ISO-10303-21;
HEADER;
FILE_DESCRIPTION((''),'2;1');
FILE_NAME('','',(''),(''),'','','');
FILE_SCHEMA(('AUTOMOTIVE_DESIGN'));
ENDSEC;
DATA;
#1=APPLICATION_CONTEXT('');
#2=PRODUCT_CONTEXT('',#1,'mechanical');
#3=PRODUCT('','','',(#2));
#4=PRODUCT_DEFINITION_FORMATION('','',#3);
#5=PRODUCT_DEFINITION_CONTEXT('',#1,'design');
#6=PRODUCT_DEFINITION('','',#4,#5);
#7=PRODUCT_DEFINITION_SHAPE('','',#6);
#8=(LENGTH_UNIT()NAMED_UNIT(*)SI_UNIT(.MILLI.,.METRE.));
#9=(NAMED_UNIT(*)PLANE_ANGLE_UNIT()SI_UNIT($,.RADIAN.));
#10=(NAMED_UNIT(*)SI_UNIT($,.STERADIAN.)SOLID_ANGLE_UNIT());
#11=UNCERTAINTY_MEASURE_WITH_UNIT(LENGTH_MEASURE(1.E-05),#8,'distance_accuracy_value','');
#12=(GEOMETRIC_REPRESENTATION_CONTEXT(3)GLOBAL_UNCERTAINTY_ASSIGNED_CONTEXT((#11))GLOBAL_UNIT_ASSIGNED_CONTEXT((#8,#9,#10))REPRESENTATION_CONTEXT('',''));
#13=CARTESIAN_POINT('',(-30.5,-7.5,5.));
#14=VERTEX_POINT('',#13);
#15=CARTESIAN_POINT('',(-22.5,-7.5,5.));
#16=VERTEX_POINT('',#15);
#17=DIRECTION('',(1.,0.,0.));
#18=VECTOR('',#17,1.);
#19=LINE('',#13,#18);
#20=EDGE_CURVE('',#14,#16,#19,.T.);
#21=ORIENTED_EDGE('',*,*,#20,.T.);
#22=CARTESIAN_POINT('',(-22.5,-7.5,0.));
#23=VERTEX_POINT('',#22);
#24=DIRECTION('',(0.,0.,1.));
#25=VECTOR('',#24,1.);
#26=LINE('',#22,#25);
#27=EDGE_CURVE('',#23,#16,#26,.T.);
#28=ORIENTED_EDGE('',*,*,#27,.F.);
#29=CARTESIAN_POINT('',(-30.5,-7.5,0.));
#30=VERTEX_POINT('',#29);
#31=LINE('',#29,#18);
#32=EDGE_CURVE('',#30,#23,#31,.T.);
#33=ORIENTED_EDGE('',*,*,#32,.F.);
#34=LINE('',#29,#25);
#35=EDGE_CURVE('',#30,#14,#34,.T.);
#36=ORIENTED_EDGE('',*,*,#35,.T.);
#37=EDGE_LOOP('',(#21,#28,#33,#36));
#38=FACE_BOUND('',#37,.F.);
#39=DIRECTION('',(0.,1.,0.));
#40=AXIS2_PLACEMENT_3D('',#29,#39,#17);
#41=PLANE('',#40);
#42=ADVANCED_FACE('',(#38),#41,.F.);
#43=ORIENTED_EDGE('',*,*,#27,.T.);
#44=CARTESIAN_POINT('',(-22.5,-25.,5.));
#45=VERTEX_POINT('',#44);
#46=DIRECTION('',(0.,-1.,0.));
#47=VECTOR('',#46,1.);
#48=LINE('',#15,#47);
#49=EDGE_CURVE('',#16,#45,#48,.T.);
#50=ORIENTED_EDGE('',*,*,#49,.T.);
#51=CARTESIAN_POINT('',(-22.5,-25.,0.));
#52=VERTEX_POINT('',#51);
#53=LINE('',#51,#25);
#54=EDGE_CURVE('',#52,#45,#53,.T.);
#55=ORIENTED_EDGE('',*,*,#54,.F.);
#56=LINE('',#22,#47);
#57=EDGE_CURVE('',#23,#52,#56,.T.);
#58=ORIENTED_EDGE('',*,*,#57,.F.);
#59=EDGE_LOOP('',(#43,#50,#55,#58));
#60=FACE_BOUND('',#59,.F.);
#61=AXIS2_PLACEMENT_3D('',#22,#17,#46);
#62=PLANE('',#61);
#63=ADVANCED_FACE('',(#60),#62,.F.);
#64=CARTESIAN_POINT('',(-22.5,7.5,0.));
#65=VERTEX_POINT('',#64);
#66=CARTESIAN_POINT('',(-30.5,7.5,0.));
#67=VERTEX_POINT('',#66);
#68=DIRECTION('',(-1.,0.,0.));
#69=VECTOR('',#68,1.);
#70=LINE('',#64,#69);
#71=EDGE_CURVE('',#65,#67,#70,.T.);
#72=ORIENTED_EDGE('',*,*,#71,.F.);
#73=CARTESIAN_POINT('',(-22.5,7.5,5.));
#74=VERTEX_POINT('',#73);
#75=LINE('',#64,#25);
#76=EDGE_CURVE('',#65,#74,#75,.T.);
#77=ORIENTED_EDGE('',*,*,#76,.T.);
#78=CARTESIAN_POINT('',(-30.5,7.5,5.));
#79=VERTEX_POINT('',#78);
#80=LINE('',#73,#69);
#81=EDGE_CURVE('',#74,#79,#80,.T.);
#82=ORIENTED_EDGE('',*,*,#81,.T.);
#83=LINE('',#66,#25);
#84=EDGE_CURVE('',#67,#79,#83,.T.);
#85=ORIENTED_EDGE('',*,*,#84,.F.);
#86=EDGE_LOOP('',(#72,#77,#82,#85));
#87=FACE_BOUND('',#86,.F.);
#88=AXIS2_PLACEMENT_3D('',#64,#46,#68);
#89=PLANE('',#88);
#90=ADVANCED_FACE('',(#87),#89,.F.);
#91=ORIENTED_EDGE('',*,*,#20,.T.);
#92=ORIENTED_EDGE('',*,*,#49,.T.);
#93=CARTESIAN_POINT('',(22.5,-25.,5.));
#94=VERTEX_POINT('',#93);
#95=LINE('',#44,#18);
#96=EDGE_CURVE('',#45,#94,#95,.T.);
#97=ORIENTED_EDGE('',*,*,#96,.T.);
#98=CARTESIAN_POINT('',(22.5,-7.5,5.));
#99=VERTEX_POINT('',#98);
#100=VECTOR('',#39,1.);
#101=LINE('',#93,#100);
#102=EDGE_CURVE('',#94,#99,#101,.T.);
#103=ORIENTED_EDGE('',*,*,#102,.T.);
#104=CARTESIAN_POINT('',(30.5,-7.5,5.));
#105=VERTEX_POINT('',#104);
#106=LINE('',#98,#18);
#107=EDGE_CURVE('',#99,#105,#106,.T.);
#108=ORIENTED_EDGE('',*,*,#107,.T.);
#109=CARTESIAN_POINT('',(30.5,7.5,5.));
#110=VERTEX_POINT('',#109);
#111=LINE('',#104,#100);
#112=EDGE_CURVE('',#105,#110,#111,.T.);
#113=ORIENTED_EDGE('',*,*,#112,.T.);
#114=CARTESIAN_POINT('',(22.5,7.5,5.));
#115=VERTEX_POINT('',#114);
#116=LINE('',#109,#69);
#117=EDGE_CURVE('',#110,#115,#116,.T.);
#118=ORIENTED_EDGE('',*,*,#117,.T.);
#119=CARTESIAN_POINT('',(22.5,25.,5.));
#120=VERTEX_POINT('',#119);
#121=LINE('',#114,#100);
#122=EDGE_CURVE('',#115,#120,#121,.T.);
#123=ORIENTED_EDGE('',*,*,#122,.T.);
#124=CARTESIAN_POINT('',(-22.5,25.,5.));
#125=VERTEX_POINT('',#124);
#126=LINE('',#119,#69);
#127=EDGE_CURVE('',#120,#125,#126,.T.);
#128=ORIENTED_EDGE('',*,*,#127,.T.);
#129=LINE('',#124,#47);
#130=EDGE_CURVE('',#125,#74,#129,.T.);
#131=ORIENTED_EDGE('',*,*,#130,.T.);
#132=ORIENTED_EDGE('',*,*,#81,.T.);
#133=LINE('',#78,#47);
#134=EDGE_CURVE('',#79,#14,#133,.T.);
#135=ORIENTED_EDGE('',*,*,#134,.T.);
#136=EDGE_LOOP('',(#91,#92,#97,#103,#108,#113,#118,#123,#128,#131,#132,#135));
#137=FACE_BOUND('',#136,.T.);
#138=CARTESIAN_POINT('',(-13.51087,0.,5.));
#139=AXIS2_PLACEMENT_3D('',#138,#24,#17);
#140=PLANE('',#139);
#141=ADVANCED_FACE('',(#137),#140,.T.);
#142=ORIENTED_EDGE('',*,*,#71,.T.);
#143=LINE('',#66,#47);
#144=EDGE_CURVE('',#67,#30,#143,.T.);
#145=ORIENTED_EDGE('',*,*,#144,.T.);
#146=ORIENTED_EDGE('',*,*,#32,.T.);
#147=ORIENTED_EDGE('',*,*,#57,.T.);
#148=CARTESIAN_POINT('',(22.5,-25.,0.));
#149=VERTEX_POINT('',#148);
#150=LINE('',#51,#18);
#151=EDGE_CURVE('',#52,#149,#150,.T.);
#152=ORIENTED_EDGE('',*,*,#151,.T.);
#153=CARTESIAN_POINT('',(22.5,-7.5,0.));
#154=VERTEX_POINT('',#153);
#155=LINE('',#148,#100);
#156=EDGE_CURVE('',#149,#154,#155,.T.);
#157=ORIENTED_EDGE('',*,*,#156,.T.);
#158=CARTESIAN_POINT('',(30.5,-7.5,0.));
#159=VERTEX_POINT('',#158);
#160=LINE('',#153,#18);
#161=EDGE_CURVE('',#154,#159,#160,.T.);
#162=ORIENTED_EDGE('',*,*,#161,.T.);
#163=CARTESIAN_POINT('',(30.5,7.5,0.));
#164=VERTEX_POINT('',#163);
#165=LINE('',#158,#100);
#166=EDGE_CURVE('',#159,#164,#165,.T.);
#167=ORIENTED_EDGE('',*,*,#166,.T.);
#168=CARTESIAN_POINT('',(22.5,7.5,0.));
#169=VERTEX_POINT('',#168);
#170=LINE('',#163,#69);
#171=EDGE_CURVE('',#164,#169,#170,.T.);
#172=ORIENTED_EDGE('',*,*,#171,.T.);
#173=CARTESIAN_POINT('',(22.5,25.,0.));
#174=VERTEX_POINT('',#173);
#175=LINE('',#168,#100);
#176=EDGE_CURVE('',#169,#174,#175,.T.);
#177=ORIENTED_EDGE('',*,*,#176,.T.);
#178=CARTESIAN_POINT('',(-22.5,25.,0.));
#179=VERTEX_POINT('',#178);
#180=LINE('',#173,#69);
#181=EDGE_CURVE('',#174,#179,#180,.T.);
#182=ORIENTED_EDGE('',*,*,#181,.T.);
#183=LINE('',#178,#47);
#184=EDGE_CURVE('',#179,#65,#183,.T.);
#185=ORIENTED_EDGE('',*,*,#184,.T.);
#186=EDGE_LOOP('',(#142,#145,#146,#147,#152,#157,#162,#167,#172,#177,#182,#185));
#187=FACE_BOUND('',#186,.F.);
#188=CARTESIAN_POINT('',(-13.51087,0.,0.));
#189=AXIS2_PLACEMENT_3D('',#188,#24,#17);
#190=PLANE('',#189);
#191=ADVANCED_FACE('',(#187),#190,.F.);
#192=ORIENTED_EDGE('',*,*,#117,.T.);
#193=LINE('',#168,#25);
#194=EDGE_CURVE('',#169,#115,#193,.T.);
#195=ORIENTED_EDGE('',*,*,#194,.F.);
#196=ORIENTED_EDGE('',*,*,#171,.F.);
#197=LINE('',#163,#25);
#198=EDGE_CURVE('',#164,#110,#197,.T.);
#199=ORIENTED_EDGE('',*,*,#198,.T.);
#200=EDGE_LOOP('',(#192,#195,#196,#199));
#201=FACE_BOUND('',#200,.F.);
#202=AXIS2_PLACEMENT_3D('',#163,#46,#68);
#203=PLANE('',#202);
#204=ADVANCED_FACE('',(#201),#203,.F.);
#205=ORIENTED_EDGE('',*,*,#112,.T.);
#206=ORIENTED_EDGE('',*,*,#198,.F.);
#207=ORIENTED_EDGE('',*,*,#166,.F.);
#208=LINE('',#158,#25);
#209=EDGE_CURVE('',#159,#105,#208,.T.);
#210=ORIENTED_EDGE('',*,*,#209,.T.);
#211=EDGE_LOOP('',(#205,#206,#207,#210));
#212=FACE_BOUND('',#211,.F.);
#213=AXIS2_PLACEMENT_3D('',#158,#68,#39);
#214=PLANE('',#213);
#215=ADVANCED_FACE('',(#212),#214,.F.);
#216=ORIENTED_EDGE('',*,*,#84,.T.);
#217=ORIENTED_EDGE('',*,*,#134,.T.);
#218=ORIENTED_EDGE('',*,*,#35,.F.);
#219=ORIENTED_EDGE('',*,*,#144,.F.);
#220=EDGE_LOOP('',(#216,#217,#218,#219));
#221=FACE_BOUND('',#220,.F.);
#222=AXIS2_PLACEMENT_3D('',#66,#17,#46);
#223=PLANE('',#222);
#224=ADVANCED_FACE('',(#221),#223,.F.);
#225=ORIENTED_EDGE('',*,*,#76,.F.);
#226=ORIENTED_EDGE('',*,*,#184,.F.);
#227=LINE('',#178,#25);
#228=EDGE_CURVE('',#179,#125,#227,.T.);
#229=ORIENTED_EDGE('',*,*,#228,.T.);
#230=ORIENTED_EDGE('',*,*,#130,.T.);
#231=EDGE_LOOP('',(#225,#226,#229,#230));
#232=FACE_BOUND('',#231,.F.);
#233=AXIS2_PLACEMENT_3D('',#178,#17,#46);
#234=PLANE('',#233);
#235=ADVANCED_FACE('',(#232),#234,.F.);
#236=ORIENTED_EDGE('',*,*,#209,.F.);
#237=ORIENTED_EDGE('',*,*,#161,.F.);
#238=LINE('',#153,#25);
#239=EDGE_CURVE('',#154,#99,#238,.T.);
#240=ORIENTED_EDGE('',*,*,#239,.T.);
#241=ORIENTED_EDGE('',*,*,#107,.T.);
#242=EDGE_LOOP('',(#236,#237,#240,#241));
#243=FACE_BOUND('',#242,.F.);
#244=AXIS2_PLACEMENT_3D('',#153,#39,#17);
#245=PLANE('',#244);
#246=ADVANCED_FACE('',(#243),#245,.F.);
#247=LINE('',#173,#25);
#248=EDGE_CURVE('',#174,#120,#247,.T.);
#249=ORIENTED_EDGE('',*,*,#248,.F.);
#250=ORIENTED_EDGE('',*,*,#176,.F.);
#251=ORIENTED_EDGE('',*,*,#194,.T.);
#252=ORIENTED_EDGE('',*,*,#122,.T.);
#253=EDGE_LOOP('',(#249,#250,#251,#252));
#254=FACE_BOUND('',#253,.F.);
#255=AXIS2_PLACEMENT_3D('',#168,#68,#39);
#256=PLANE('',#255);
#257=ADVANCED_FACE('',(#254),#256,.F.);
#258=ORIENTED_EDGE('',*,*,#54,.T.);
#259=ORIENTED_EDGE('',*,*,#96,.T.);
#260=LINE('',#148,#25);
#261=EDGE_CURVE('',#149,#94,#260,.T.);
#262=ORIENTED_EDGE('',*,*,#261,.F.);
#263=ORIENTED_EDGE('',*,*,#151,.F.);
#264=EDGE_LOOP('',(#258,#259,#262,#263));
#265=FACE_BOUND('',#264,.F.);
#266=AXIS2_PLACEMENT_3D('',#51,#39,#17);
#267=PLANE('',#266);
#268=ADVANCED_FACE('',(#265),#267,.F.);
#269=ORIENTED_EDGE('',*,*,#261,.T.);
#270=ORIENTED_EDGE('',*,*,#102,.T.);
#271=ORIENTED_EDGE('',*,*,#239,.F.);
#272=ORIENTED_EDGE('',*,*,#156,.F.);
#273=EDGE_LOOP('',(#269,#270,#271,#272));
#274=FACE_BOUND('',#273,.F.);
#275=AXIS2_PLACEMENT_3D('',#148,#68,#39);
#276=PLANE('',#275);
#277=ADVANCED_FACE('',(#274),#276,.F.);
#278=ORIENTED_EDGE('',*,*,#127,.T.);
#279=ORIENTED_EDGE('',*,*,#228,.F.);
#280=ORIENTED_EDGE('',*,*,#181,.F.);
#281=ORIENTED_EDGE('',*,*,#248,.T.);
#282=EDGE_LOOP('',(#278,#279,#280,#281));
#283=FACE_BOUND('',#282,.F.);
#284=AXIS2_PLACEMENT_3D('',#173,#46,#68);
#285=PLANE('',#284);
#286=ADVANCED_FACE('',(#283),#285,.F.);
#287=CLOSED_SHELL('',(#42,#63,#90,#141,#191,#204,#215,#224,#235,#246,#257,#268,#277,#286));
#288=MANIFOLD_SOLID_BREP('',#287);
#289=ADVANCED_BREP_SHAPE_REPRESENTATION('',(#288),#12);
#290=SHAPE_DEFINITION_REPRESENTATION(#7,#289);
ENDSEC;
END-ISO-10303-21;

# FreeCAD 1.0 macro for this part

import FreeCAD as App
import Part
import Sketcher
from FreeCAD import Vector

doc = App.newDocument("Part")
params = doc.addObject("Spreadsheet::Sheet", "Params")
for row, (alias, value) in enumerate([
    ("sketch1_width", "8 mm"),
    ("sketch1_width2", "45 mm"),
    ("sketch1_height", "15 mm"),
    ("sketch1_height2", "17.5 mm"),
    ("pad1_length", "5 mm"),
], start=1):
    params.set(f"A{row}", alias)
    params.set(f"B{row}", "=" + value)
    params.setAlias(f"B{row}", alias)

body = doc.addObject("PartDesign::Body", "Body")

sketch1 = body.newObject("Sketcher::SketchObject", "Sketch")
sketch1.AttachmentSupport = (doc.getObject("XY_Plane"), [""])
sketch1.MapMode = "FlatFace"
sketch1.addGeometry([
    Part.LineSegment(Vector(-22, 8, 0), Vector(-30, 8, 0)),
    Part.LineSegment(Vector(-30, 8, 0), Vector(-30, -8, 0)),
    Part.LineSegment(Vector(-30, -8, 0), Vector(-22, -8, 0)),
    Part.LineSegment(Vector(-22, -8, 0), Vector(-22, -25, 0)),
    Part.LineSegment(Vector(-22, -25, 0), Vector(22, -25, 0)),
    Part.LineSegment(Vector(22, -25, 0), Vector(22, -8, 0)),
    Part.LineSegment(Vector(22, -8, 0), Vector(30, -8, 0)),
    Part.LineSegment(Vector(30, -8, 0), Vector(30, 8, 0)),
    Part.LineSegment(Vector(30, 8, 0), Vector(22, 8, 0)),
    Part.LineSegment(Vector(22, 8, 0), Vector(22, 25, 0)),
    Part.LineSegment(Vector(22, 25, 0), Vector(-22, 25, 0)),
    Part.LineSegment(Vector(-22, 25, 0), Vector(-22, 8, 0)),
], False)
sketch1.addConstraint([
    Sketcher.Constraint("Coincident", 0, 2, 1, 1),
    Sketcher.Constraint("Coincident", 1, 2, 2, 1),
    Sketcher.Constraint("Coincident", 2, 2, 3, 1),
    Sketcher.Constraint("Coincident", 3, 2, 4, 1),
    Sketcher.Constraint("Coincident", 4, 2, 5, 1),
    Sketcher.Constraint("Coincident", 5, 2, 6, 1),
    Sketcher.Constraint("Coincident", 6, 2, 7, 1),
    Sketcher.Constraint("Coincident", 7, 2, 8, 1),
    Sketcher.Constraint("Coincident", 8, 2, 9, 1),
    Sketcher.Constraint("Coincident", 9, 2, 10, 1),
    Sketcher.Constraint("Coincident", 10, 2, 11, 1),
    Sketcher.Constraint("Coincident", 11, 2, 0, 1),
    Sketcher.Constraint("Horizontal", 0),
    Sketcher.Constraint("Vertical", 1),
    Sketcher.Constraint("Horizontal", 2),
    Sketcher.Constraint("Vertical", 3),
    Sketcher.Constraint("Horizontal", 4),
    Sketcher.Constraint("Vertical", 5),
    Sketcher.Constraint("Horizontal", 6),
    Sketcher.Constraint("Vertical", 7),
    Sketcher.Constraint("Horizontal", 8),
    Sketcher.Constraint("Vertical", 9),
    Sketcher.Constraint("Horizontal", 10),
    Sketcher.Constraint("Vertical", 11),
    Sketcher.Constraint("Symmetric", 0, 2, 6, 2, -1, 1),
    Sketcher.Constraint("Symmetric", 2, 2, 8, 2, -1, 1),
    Sketcher.Constraint("Symmetric", 4, 2, 10, 2, -1, 1),
    Sketcher.Constraint("Symmetric", 2, 2, 5, 2, -2),
    Sketcher.Constraint("DistanceX", 0, 2, 0, 1, 8.0),
    Sketcher.Constraint("DistanceX", 4, 1, 4, 2, 45.0),
    Sketcher.Constraint("DistanceY", 1, 2, 1, 1, 15.0),
    Sketcher.Constraint("DistanceY", 3, 2, 3, 1, 17.5),
])
sketch1.setExpression("Constraints[28]", "Params.sketch1_width")
sketch1.setExpression("Constraints[29]", "Params.sketch1_width2")
sketch1.setExpression("Constraints[30]", "Params.sketch1_height")
sketch1.setExpression("Constraints[31]", "Params.sketch1_height2")
pad1 = body.newObject("PartDesign::Pad", "Pad")
pad1.Profile = sketch1
pad1.setExpression("Length", "Params.pad1_length")

doc.recompute()
